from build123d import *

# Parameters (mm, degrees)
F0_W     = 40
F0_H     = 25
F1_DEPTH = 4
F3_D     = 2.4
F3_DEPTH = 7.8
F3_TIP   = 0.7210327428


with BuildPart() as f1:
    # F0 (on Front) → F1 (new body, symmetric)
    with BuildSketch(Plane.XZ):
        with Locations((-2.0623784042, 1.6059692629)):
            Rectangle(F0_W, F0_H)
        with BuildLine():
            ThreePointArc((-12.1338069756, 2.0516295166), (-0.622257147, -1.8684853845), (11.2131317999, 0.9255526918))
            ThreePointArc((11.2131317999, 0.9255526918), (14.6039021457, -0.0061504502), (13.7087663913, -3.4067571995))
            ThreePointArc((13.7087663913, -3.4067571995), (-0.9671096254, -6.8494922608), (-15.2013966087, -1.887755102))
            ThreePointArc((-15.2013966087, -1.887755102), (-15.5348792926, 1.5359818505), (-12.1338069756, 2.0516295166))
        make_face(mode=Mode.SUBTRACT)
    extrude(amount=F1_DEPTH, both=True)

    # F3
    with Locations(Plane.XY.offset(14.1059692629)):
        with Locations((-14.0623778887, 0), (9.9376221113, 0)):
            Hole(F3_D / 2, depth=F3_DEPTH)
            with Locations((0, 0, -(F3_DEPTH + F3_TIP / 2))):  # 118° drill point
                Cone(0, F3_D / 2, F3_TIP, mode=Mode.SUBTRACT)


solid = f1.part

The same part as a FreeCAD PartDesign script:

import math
import FreeCAD as App
import Part
import Sketcher

V = App.Vector
Q = App.Units.Quantity

doc = App.newDocument("Part")
body = doc.addObject("PartDesign::Body", "Body")

# Sketch on XZ plane
sketch1 = body.newObject("Sketcher::SketchObject", "Sketch")
sketch1.AttachmentSupport = (doc.getObject("XZ_Plane"), [""])
sketch1.MapMode = "FlatFace"
sketch1.addGeometry([
    Part.LineSegment(V(-22.1, 14.1, 0), V(-22.1, -10.9, 0)),  # 0
    Part.LineSegment(V(-22.1, -10.9, 0), V(17.9, -10.9, 0)),  # 1
    Part.LineSegment(V(17.9, -10.9, 0), V(17.9, 14.1, 0)),  # 2
    Part.LineSegment(V(17.9, 14.1, 0), V(-22.1, 14.1, 0)),  # 3
    Part.ArcOfCircle(Part.Circle(V(-13.6, 0, 0), V(0, 0, 1), 2.5), math.radians(55), math.radians(229)),  # 4
    Part.ArcOfCircle(Part.Circle(V(0.4, 20.1, 0), V(0, 0, 1), 22), math.radians(-125), math.radians(-61)),  # 5
    Part.ArcOfCircle(Part.Circle(V(12.4, -1.3, 0), V(0, 0, 1), 2.5), math.radians(-59), math.radians(119)),  # 6
    Part.ArcOfCircle(Part.Circle(V(0.4, 20.1, 0), V(0, 0, 1), 27), math.radians(-125), math.radians(-61)),  # 7
], False)
sketch1.addConstraint([
    Sketcher.Constraint("Coincident", 0, 2, 1, 1),
    Sketcher.Constraint("Coincident", 1, 2, 2, 1),
    Sketcher.Constraint("Coincident", 2, 2, 3, 1),
    Sketcher.Constraint("Coincident", 3, 2, 0, 1),
    Sketcher.Constraint("Tangent", 4, 1, 5, 1),
    Sketcher.Constraint("Tangent", 5, 2, 6, 2),
    Sketcher.Constraint("Coincident", 6, 1, 7, 2),
    Sketcher.Constraint("Coincident", 7, 1, 4, 2),
    Sketcher.Constraint("Vertical", 0),
    Sketcher.Constraint("Horizontal", 1),
    Sketcher.Constraint("Vertical", 2),
    Sketcher.Constraint("Horizontal", 3),
    Sketcher.Constraint("Equal", 4, 6),
    Sketcher.Constraint("PointOnObject", 4, 3, -1),
    Sketcher.Constraint("Radius", 5, Q("22 mm")),
    Sketcher.Constraint("Radius", 7, Q("27 mm")),
    Sketcher.Constraint("Radius", 4, Q("2.5 mm")),
    Sketcher.Constraint("DistanceX", 1, 1, 1, 2, Q("40 mm")),
    Sketcher.Constraint("DistanceY", 0, 2, 0, 1, Q("25 mm")),
    Sketcher.Constraint("DistanceX", 4, 3, 5, 3, Q("14 mm")),
    Sketcher.Constraint("DistanceX", 5, 3, 6, 3, Q("12 mm")),
    Sketcher.Constraint("DistanceY", 0, 2, 5, 3, Q("31 mm")),
    Sketcher.Constraint("DistanceX", 0, 2, 4, 3, Q("8.5 mm")),
    Sketcher.Constraint("DistanceX", 4, 3, -1, 1, Q("13.562378 mm")),
    Sketcher.Constraint("DistanceX", 4, 1, 7, 3, Q("12.583381 mm")),
    Sketcher.Constraint("DistanceY", 6, 1, 5, 2, Q("4.33231 mm")),
])
pad1 = body.newObject("PartDesign::Pad", "Pad")
pad1.Profile = sketch1
pad1.Length = 8
pad1.Midplane = True

# Sketch on XY plane
sketch2 = body.newObject("Sketcher::SketchObject", "Sketch001")
sketch2.AttachmentSupport = (doc.getObject("XY_Plane"), [""])
sketch2.MapMode = "FlatFace"
sketch2.AttachmentOffset = App.Placement(V(0, 0, 14.105969), App.Rotation())
sketch2.addGeometry([
    Part.Circle(V(-14.1, 0, 0), V(0, 0, 1), 1.2),
    Part.Circle(V(9.9, 0, 0), V(0, 0, 1), 1.2),
], False)
sketch2.addConstraint([
    Sketcher.Constraint("Equal", 0, 1),
    Sketcher.Constraint("PointOnObject", 0, 3, -1),
    Sketcher.Constraint("PointOnObject", 1, 3, -1),
    Sketcher.Constraint("Diameter", 0, Q("2.4 mm")),
    Sketcher.Constraint("DistanceX", 0, 3, 1, 3, Q("24 mm")),
    Sketcher.Constraint("DistanceX", 0, 3, -1, 1, Q("14.062378 mm")),
])
doc.recompute()
hole = body.newObject("PartDesign::Hole", "Hole")
hole.Profile = sketch2
hole.ThreadType = "None"
hole.Diameter = 2.4
hole.DepthType = "Dimension"
hole.Depth = 7.8
hole.DrillPoint = "Angled"
hole.DrillPointAngle = 118

doc.recompute()
